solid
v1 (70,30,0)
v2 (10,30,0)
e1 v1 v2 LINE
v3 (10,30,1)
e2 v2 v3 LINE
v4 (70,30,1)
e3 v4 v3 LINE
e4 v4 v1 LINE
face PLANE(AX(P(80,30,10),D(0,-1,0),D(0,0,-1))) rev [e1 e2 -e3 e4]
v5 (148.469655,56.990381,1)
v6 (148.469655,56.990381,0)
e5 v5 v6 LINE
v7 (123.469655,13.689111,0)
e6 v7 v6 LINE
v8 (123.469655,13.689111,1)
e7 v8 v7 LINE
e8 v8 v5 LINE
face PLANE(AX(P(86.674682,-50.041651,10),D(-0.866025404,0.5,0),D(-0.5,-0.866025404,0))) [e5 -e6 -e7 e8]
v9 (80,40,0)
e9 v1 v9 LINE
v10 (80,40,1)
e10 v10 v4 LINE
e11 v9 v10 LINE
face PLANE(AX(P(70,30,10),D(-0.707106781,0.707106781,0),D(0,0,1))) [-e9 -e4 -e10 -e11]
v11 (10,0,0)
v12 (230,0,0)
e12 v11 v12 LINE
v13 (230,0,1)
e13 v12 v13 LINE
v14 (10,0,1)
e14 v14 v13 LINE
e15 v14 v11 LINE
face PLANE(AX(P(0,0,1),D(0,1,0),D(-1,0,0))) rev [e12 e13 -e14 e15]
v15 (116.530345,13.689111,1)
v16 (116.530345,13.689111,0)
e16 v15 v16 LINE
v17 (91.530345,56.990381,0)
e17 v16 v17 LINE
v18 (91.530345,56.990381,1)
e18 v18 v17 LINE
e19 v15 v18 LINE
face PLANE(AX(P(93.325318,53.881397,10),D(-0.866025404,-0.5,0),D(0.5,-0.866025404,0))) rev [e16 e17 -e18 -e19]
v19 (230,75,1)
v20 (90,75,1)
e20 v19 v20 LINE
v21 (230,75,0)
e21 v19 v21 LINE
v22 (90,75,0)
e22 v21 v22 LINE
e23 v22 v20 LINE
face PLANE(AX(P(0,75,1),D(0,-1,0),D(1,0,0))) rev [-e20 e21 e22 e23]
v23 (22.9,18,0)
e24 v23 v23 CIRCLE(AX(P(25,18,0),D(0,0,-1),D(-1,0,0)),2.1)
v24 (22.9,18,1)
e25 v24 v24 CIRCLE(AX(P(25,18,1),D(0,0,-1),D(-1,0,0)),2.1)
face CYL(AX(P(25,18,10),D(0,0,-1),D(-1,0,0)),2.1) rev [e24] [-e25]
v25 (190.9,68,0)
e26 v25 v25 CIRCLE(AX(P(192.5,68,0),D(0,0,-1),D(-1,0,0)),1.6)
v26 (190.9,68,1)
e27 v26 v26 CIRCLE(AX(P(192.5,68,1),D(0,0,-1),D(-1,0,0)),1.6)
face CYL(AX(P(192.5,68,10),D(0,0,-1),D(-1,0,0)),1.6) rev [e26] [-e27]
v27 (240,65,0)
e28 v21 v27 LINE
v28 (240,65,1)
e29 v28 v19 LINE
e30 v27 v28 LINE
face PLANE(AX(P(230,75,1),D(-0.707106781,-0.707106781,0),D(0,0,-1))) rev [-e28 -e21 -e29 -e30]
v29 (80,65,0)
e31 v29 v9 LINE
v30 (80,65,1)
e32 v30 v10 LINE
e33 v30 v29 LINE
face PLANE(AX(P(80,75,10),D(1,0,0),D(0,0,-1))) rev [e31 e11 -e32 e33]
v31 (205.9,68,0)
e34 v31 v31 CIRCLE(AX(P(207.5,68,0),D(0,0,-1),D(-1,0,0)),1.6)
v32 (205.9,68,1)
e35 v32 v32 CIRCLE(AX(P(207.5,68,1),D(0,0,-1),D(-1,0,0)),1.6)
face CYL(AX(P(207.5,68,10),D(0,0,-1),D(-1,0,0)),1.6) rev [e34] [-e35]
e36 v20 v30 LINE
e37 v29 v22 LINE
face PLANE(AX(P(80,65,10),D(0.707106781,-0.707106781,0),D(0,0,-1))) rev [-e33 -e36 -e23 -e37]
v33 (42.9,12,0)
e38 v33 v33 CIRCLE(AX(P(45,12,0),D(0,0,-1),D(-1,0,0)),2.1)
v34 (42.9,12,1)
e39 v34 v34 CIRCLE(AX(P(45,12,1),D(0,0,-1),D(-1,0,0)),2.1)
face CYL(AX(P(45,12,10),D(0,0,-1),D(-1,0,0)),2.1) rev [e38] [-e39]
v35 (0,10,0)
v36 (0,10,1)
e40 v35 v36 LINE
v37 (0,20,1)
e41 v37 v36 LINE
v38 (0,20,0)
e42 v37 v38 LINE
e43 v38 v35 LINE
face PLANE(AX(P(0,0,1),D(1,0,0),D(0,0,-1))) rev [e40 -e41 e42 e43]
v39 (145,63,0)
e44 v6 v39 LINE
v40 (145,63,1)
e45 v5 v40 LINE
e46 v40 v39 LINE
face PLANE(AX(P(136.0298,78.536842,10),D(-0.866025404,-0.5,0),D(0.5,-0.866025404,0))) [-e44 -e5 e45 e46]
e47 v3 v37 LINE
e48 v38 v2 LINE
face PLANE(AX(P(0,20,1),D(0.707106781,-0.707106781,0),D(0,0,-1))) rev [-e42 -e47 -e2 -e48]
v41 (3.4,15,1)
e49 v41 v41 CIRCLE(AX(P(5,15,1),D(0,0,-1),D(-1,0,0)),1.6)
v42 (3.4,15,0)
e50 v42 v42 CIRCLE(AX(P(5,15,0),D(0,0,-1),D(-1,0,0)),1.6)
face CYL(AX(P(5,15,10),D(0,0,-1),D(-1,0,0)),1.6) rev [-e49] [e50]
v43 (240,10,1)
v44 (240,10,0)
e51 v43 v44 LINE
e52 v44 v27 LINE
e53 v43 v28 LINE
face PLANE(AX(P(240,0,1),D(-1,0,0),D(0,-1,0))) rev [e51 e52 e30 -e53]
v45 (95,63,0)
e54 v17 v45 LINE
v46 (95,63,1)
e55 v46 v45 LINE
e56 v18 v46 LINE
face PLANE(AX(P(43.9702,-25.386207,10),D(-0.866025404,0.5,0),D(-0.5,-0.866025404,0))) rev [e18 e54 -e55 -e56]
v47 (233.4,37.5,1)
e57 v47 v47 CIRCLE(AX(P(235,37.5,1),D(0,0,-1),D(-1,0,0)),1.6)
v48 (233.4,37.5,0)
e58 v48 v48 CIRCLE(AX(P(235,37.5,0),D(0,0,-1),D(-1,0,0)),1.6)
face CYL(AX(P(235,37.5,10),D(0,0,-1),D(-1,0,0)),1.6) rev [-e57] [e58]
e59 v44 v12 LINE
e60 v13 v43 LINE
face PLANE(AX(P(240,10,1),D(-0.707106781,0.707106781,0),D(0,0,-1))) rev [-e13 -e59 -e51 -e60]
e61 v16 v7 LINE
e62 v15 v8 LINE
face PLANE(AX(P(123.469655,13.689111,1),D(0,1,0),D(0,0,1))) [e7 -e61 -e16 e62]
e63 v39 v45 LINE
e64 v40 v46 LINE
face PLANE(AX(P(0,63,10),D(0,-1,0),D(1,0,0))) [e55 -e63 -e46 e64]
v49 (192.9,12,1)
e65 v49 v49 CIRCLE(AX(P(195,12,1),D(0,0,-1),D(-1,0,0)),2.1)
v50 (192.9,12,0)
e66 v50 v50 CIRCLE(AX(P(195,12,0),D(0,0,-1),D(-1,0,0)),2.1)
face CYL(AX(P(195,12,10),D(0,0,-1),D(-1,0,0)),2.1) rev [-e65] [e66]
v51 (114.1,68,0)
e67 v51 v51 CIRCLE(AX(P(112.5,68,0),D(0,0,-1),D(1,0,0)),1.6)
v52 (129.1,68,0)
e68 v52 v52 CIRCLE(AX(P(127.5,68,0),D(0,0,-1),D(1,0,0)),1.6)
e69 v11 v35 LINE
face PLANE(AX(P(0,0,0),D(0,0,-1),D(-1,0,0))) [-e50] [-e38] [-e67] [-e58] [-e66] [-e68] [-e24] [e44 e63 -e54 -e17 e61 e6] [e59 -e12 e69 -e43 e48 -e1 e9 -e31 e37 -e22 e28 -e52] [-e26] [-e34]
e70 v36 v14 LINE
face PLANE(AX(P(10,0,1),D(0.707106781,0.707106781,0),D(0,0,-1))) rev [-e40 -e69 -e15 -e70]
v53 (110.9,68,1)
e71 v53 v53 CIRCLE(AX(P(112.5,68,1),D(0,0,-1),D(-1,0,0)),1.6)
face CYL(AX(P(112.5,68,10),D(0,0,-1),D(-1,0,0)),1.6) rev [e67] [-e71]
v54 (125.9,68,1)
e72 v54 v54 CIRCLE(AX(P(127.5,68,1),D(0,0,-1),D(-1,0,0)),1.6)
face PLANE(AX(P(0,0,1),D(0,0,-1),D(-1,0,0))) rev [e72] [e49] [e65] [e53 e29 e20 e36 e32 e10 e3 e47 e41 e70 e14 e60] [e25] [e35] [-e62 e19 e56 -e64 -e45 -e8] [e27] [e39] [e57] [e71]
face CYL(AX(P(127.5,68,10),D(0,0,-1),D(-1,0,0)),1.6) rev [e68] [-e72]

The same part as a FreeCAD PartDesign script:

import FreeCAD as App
import Part
import Sketcher
from FreeCAD import Vector
Q = App.Units.Quantity


def edges_at(feature, points):
    """Names of the edges that pass closest to the given points."""
    edges = feature.Shape.Edges
    near = lambda p: min(range(len(edges)), key=lambda i: edges[i].distToShape(Part.Vertex(*p))[0])
    return sorted({f"Edge{near(p) + 1}" for p in points})


def add_polygon(sketch, points):
    """Adds a closed chain of lines whose ends are joined by coincident constraints."""
    first, n = sketch.GeometryCount, len(points)
    for a, b in zip(points, points[1:] + points[:1]):
        sketch.addGeometry(Part.LineSegment(App.Vector(*a, 0), App.Vector(*b, 0)), False)
    for i in range(n):
        sketch.addConstraint(Sketcher.Constraint("Coincident", first + i, 2, first + (i + 1) % n, 1))

doc = App.newDocument("Part")
body = doc.addObject("PartDesign::Body", "Body")

# Sketch on XY plane
sketch1 = body.newObject("Sketcher::SketchObject", "Sketch")
sketch1.AttachmentSupport = (doc.getObject("XY_Plane"), [""])
sketch1.MapMode = "FlatFace"
add_polygon(sketch1, [(0, 75), (0, 0), (240, 0), (240, 75)])  # lines 0-3
sketch1.addConstraint([
    Sketcher.Constraint("Vertical", 0),
    Sketcher.Constraint("Horizontal", 1),
    Sketcher.Constraint("Vertical", 2),
    Sketcher.Constraint("Horizontal", 3),
    Sketcher.Constraint("Coincident", 0, 2, -1, 1),
    Sketcher.Constraint("DistanceX", 1, 1, 1, 2, Q("240 mm")),
    Sketcher.Constraint("DistanceY", 0, 2, 0, 1, Q("75 mm")),
])
pad1 = body.newObject("PartDesign::Pad", "Pad")
pad1.Profile = sketch1
pad1.Length = 1

# Sketch on XY plane
sketch2 = body.newObject("Sketcher::SketchObject", "Sketch001")
sketch2.AttachmentSupport = (doc.getObject("XY_Plane"), [""])
sketch2.MapMode = "FlatFace"
add_polygon(sketch2, [(130, 8), (110, 8), (100, 25), (105, 34), (92, 57), (95, 63), (145, 63), (148, 57), (135, 34), (140, 25)])  # lines 0-9
sketch2.addConstraint([
    Sketcher.Constraint("Horizontal", 0),
    Sketcher.Constraint("Horizontal", 5),
    Sketcher.Constraint("Parallel", 1, 3),
    Sketcher.Constraint("Parallel", 2, 4),
    Sketcher.Constraint("Parallel", 3, 6),
    Sketcher.Constraint("Parallel", 4, 7),
    Sketcher.Constraint("Parallel", 6, 8),
    Sketcher.Constraint("Parallel", 7, 9),
    Sketcher.Constraint("Horizontal", 3, 2, 6, 2),
    Sketcher.Constraint("Horizontal", 2, 2, 7, 2),
    Sketcher.Constraint("Horizontal", 1, 2, 8, 2),
    Sketcher.Constraint("Equal", 4, 6),
    Sketcher.Constraint("DistanceX", 0, 2, 0, 1, Q("20 mm")),
    Sketcher.Constraint("DistanceX", 5, 1, 5, 2, Q("50 mm")),
    Sketcher.Constraint("Angle", 1, Q("120 deg")),
    Sketcher.Constraint("Distance", 1, Q("20 mm")),
    Sketcher.Constraint("Distance", 2, Q("10 mm")),
    Sketcher.Constraint("DistanceX", -1, 1, 0, 2, Q("110 mm")),
    Sketcher.Constraint("DistanceY", -1, 1, 1, 2, Q("25 mm")),
    Sketcher.Constraint("DistanceY", -1, 1, 4, 2, Q("63 mm")),
])
pocket1 = body.newObject("PartDesign::Pocket", "Pocket")
pocket1.Profile = sketch2
pocket1.Length = 10
pocket1.Reversed = True

# Sketch on XY plane
sketch3 = body.newObject("Sketcher::SketchObject", "Sketch002")
sketch3.AttachmentSupport = (doc.getObject("XY_Plane"), [""])
sketch3.MapMode = "FlatFace"
add_polygon(sketch3, [(80, 75), (80, 30), (0, 30), (0, 75)])  # lines 0-3
sketch3.addConstraint([
    Sketcher.Constraint("Vertical", 0),
    Sketcher.Constraint("Horizontal", 1),
    Sketcher.Constraint("Vertical", 2),
    Sketcher.Constraint("Horizontal", 3),
    Sketcher.Constraint("PointOnObject", 1, 2, -2),
    Sketcher.Constraint("DistanceX", 1, 2, 1, 1, Q("80 mm")),
    Sketcher.Constraint("DistanceY", 0, 2, 0, 1, Q("45 mm")),
    Sketcher.Constraint("DistanceY", -1, 1, 0, 2, Q("30 mm")),
])
pocket2 = body.newObject("PartDesign::Pocket", "Pocket001")
pocket2.Profile = sketch3
pocket2.Length = 10
pocket2.Reversed = True
doc.recompute()

chamfer = body.newObject("PartDesign::Chamfer", "Chamfer")
chamfer.Base = (pocket2, edges_at(pocket2, [
    (80, 75, 0.5),
    (0, 30, 0.5),
    (80, 30, 0.5),
    (240, 75, 0.5),
    (240, 0, 0.5),
    (0, 0, 0.5),
]))
chamfer.Size = 10

# Sketch on XY plane
sketch4 = body.newObject("Sketcher::SketchObject", "Sketch003")
sketch4.AttachmentSupport = (doc.getObject("XY_Plane"), [""])
sketch4.MapMode = "FlatFace"
sketch4.addGeometry([
    Part.Circle(Vector(5, 15, 0), Vector(0, 0, 1), 1.6),  # 0
    Part.Circle(Vector(195, 12, 0), Vector(0, 0, 1), 2.1),  # 1
    Part.Circle(Vector(45, 12, 0), Vector(0, 0, 1), 2.1),  # 2
    Part.Circle(Vector(235, 37.5, 0), Vector(0, 0, 1), 1.6),  # 3
    Part.Circle(Vector(207.5, 68, 0), Vector(0, 0, 1), 1.6),  # 4
    Part.Circle(Vector(192.5, 68, 0), Vector(0, 0, 1), 1.6),  # 5
    Part.Circle(Vector(127.5, 68, 0), Vector(0, 0, 1), 1.6),  # 6
    Part.Circle(Vector(112.5, 68, 0), Vector(0, 0, 1), 1.6),  # 7
    Part.Circle(Vector(25, 18, 0), Vector(0, 0, 1), 2.1),  # 8
], False)
sketch4.addConstraint([
    Sketcher.Constraint("Equal", 1, 2),
    Sketcher.Constraint("Equal", 0, 3),
    Sketcher.Constraint("Equal", 3, 4),
    Sketcher.Constraint("Equal", 4, 5),
    Sketcher.Constraint("Equal", 5, 6),
    Sketcher.Constraint("Equal", 6, 7),
    Sketcher.Constraint("Equal", 2, 8),
    Sketcher.Constraint("Horizontal", 1, 3, 2, 3),
    Sketcher.Constraint("Horizontal", 4, 3, 5, 3),
    Sketcher.Constraint("Horizontal", 5, 3, 6, 3),
    Sketcher.Constraint("Horizontal", 6, 3, 7, 3),
    Sketcher.Constraint("Diameter", 0, Q("3.2 mm")),
    Sketcher.Constraint("Diameter", 1, Q("4.2 mm")),
    Sketcher.Constraint("DistanceX", -1, 1, 0, 3, Q("5 mm")),
    Sketcher.Constraint("DistanceY", -1, 1, 0, 3, Q("15 mm")),
    Sketcher.Constraint("DistanceX", -1, 1, 1, 3, Q("195 mm")),
    Sketcher.Constraint("DistanceY", -1, 1, 1, 3, Q("12 mm")),
    Sketcher.Constraint("DistanceX", -1, 1, 2, 3, Q("45 mm")),
    Sketcher.Constraint("DistanceX", -1, 1, 3, 3, Q("235 mm")),
    Sketcher.Constraint("DistanceY", -1, 1, 4, 3, Q("68 mm")),
    Sketcher.Constraint("DistanceX", -1, 1, 8, 3, Q("25 mm")),
    Sketcher.Constraint("DistanceY", -1, 1, 8, 3, Q("18 mm")),
    Sketcher.Constraint("DistanceX", 5, 3, 4, 3, Q("15 mm")),
    Sketcher.Constraint("DistanceX", 6, 3, 5, 3, Q("65 mm")),
    Sketcher.Constraint("DistanceX", 7, 3, 6, 3, Q("15 mm")),
    Sketcher.Constraint("DistanceY", -1, 1, 3, 3, Q("37.5 mm")),
    Sketcher.Constraint("DistanceX", -1, 1, 4, 3, Q("207.5 mm")),
])
pocket3 = body.newObject("PartDesign::Pocket", "Pocket002")
pocket3.Profile = sketch4
pocket3.Length = 10
pocket3.Reversed = True

# Sketch on XY plane
sketch5 = body.newObject("Sketcher::SketchObject", "Sketch004")
sketch5.AttachmentSupport = (doc.getObject("XY_Plane"), [""])
sketch5.MapMode = "FlatFace"
add_polygon(sketch5, [(123, 14), (135, 34), (140, 25), (130, 8), (110, 8), (100, 25), (105, 34), (117, 14)])  # lines 0-7
sketch5.addConstraint([
    Sketcher.Constraint("Horizontal", 3),
    Sketcher.Constraint("Horizontal", 7),
    Sketcher.Constraint("Parallel", 0, 2),
    Sketcher.Constraint("Parallel", 1, 4),
    Sketcher.Constraint("Parallel", 2, 5),
    Sketcher.Constraint("Parallel", 4, 6),
    Sketcher.Constraint("Horizontal", 1, 2, 4, 2),
    Sketcher.Constraint("Horizontal", 0, 2, 5, 2),
    Sketcher.Constraint("Equal", 2, 4),
    Sketcher.Constraint("DistanceX", 3, 2, 3, 1, Q("20 mm")),
    Sketcher.Constraint("Angle", 0, Q("60 deg")),
    Sketcher.Constraint("Distance", 1, Q("10 mm")),
    Sketcher.Constraint("Distance", 2, Q("20 mm")),
    Sketcher.Constraint("DistanceX", -1, 1, 0, 2, Q("135 mm")),
    Sketcher.Constraint("DistanceY", -1, 1, 1, 2, Q("25 mm")),
    Sketcher.Constraint("DistanceX", 7, 1, 7, 2, Q("6.93931 mm")),
])
pad2 = body.newObject("PartDesign::Pad", "Pad001")
pad2.Profile = sketch5
pad2.Length = 1

doc.recompute()
